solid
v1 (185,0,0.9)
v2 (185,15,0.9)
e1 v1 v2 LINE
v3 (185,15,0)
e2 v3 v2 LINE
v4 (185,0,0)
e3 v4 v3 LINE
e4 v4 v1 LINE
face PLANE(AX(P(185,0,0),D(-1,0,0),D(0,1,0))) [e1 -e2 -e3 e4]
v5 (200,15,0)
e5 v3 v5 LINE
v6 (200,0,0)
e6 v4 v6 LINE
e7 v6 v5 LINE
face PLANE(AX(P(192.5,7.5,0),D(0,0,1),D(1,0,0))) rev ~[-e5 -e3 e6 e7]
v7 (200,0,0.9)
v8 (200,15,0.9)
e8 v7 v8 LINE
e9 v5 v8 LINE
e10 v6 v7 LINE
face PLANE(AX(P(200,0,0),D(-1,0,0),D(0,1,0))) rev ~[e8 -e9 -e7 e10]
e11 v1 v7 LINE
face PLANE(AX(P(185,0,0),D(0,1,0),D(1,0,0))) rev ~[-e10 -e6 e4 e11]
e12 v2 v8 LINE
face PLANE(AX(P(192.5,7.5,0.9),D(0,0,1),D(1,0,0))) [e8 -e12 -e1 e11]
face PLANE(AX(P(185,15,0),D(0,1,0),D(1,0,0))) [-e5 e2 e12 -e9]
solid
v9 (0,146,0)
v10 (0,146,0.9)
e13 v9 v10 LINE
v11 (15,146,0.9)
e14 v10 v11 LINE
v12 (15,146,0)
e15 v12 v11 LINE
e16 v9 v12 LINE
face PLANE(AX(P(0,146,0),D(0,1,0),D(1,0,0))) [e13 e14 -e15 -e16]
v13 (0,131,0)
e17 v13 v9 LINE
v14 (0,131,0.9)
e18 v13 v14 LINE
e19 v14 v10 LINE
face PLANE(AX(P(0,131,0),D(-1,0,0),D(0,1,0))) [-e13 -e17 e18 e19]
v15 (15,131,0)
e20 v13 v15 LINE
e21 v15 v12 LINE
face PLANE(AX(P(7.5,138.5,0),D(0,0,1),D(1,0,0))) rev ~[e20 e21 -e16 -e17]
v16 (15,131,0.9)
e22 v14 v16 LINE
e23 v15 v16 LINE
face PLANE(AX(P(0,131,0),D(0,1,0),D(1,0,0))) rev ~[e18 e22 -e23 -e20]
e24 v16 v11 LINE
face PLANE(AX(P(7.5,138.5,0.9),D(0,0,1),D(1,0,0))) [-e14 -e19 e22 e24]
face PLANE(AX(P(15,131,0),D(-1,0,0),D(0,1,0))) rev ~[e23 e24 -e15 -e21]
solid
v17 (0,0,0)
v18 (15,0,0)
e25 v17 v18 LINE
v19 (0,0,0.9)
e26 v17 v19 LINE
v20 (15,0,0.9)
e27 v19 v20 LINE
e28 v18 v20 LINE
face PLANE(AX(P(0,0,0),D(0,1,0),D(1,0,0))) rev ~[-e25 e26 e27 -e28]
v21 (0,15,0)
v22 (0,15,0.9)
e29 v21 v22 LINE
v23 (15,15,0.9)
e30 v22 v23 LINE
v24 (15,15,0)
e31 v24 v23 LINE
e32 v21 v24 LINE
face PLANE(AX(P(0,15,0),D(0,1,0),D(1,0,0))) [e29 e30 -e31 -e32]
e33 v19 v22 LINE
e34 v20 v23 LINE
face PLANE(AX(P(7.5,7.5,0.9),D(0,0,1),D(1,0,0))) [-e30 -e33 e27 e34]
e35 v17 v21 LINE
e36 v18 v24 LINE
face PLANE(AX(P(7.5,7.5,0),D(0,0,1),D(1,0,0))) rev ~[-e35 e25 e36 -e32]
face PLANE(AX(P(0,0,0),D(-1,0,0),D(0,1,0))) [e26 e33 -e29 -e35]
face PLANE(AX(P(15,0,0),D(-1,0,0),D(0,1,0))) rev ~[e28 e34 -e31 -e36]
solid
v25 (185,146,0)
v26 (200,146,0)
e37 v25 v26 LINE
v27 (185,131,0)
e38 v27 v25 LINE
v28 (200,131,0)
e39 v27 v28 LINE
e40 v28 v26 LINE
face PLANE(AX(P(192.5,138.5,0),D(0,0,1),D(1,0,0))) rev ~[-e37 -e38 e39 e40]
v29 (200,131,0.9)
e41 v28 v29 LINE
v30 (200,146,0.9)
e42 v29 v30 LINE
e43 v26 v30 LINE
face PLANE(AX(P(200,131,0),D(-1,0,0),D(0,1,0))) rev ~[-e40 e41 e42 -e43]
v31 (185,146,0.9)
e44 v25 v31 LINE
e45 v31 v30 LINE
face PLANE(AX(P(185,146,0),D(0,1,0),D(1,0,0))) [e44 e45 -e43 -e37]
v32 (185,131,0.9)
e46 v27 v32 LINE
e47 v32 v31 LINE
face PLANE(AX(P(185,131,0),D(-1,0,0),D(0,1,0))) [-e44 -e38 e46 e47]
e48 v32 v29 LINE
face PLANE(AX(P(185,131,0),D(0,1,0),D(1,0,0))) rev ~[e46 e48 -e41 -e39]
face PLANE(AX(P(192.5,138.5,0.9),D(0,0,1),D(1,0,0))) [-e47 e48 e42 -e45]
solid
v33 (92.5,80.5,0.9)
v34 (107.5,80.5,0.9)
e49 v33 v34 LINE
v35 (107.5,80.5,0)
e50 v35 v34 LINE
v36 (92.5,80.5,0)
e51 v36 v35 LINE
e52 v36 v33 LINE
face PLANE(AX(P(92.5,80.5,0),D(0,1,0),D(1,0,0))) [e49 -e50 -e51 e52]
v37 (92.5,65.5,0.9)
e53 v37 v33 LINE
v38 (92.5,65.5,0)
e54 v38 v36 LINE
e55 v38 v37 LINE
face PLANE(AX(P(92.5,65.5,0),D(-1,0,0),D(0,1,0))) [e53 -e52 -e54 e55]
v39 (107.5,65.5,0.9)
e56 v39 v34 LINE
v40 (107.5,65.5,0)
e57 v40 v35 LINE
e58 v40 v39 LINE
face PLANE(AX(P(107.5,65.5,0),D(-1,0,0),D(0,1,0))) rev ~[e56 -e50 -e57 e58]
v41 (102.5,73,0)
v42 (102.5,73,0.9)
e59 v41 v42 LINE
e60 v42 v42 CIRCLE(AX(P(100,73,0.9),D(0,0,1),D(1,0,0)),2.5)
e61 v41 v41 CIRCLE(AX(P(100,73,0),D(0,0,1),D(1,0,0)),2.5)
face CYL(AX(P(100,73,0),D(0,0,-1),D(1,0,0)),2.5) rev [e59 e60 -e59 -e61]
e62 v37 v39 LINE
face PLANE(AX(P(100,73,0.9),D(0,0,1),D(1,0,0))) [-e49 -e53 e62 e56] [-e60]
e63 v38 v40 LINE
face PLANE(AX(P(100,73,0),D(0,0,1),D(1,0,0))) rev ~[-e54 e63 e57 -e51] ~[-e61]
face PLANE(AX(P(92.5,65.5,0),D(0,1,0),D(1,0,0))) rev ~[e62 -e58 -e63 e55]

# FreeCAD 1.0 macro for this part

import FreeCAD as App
import Part
import Sketcher
from FreeCAD import Vector

doc = App.newDocument("Part")
body = doc.addObject("PartDesign::Body", "Body")
body.AllowCompound = True

# Sketch on XY plane
sketch1 = body.newObject("Sketcher::SketchObject", "Sketch")
sketch1.AttachmentSupport = (doc.getObject("XY_Plane"), [""])
sketch1.MapMode = "FlatFace"
sketch1.addGeometry([
    Part.LineSegment(Vector(0, 15, 0), Vector(0, 0, 0)),  # 0
    Part.LineSegment(Vector(0, 0, 0), Vector(15, 0, 0)),  # 1
    Part.LineSegment(Vector(15, 0, 0), Vector(15, 15, 0)),  # 2
    Part.LineSegment(Vector(15, 15, 0), Vector(0, 15, 0)),  # 3
    Part.LineSegment(Vector(185, 15, 0), Vector(185, 0, 0)),  # 4
    Part.LineSegment(Vector(185, 0, 0), Vector(200, 0, 0)),  # 5
    Part.LineSegment(Vector(200, 0, 0), Vector(200, 15, 0)),  # 6
    Part.LineSegment(Vector(200, 15, 0), Vector(185, 15, 0)),  # 7
    Part.LineSegment(Vector(185, 146, 0), Vector(185, 131, 0)),  # 8
    Part.LineSegment(Vector(185, 131, 0), Vector(200, 131, 0)),  # 9
    Part.LineSegment(Vector(200, 131, 0), Vector(200, 146, 0)),  # 10
    Part.LineSegment(Vector(200, 146, 0), Vector(185, 146, 0)),  # 11
    Part.LineSegment(Vector(0, 146, 0), Vector(0, 131, 0)),  # 12
    Part.LineSegment(Vector(0, 131, 0), Vector(15, 131, 0)),  # 13
    Part.LineSegment(Vector(15, 131, 0), Vector(15, 146, 0)),  # 14
    Part.LineSegment(Vector(15, 146, 0), Vector(0, 146, 0)),  # 15
    Part.LineSegment(Vector(92.5, 80.5, 0), Vector(92.5, 65.5, 0)),  # 16
    Part.LineSegment(Vector(92.5, 65.5, 0), Vector(107.5, 65.5, 0)),  # 17
    Part.LineSegment(Vector(107.5, 65.5, 0), Vector(107.5, 80.5, 0)),  # 18
    Part.LineSegment(Vector(107.5, 80.5, 0), Vector(92.5, 80.5, 0)),  # 19
    Part.Circle(Vector(100, 73, 0), Vector(0, 0, 1), 2.5),  # 20
], False)
sketch1.addConstraint([
    Sketcher.Constraint("Coincident", 0, 2, 1, 1),
    Sketcher.Constraint("Coincident", 1, 2, 2, 1),
    Sketcher.Constraint("Coincident", 2, 2, 3, 1),
    Sketcher.Constraint("Coincident", 3, 2, 0, 1),
    Sketcher.Constraint("Coincident", 4, 2, 5, 1),
    Sketcher.Constraint("Coincident", 5, 2, 6, 1),
    Sketcher.Constraint("Coincident", 6, 2, 7, 1),
    Sketcher.Constraint("Coincident", 7, 2, 4, 1),
    Sketcher.Constraint("Coincident", 8, 2, 9, 1),
    Sketcher.Constraint("Coincident", 9, 2, 10, 1),
    Sketcher.Constraint("Coincident", 10, 2, 11, 1),
    Sketcher.Constraint("Coincident", 11, 2, 8, 1),
    Sketcher.Constraint("Coincident", 12, 2, 13, 1),
    Sketcher.Constraint("Coincident", 13, 2, 14, 1),
    Sketcher.Constraint("Coincident", 14, 2, 15, 1),
    Sketcher.Constraint("Coincident", 15, 2, 12, 1),
    Sketcher.Constraint("Coincident", 16, 2, 17, 1),
    Sketcher.Constraint("Coincident", 17, 2, 18, 1),
    Sketcher.Constraint("Coincident", 18, 2, 19, 1),
    Sketcher.Constraint("Coincident", 19, 2, 16, 1),
    Sketcher.Constraint("Vertical", 0),
    Sketcher.Constraint("Horizontal", 1),
    Sketcher.Constraint("Vertical", 2),
    Sketcher.Constraint("Horizontal", 3),
    Sketcher.Constraint("Vertical", 4),
    Sketcher.Constraint("Horizontal", 5),
    Sketcher.Constraint("Vertical", 6),
    Sketcher.Constraint("Horizontal", 7),
    Sketcher.Constraint("Vertical", 8),
    Sketcher.Constraint("Horizontal", 9),
    Sketcher.Constraint("Vertical", 10),
    Sketcher.Constraint("Horizontal", 11),
    Sketcher.Constraint("Vertical", 12),
    Sketcher.Constraint("Horizontal", 13),
    Sketcher.Constraint("Vertical", 14),
    Sketcher.Constraint("Horizontal", 15),
    Sketcher.Constraint("Vertical", 16),
    Sketcher.Constraint("Horizontal", 17),
    Sketcher.Constraint("Vertical", 18),
    Sketcher.Constraint("Horizontal", 19),
    Sketcher.Constraint("Coincident", 0, 2, -1, 1),
    Sketcher.Constraint("PointOnObject", 4, 2, -1),
    Sketcher.Constraint("PointOnObject", 12, 2, -2),
    Sketcher.Constraint("Horizontal", 3, 2, 6, 2),
    Sketcher.Constraint("Horizontal", 9, 2, 12, 2),
    Sketcher.Constraint("Horizontal", 11, 2, 14, 2),
    Sketcher.Constraint("Vertical", 7, 2, 8, 2),
    Sketcher.Constraint("Vertical", 6, 2, 9, 2),
    Sketcher.Constraint("Vertical", 2, 2, 13, 2),
    Sketcher.Constraint("Equal", 3, 5),
    Sketcher.Constraint("Equal", 15, 17),
    Sketcher.Constraint("Equal", 19, 0),
    Sketcher.Constraint("Equal", 6, 8),
    Sketcher.Constraint("Equal", 14, 16),
    Sketcher.Constraint("Diameter", 20, 5.0),
    Sketcher.Constraint("DistanceX", 1, 1, 1, 2, 15.0),
    Sketcher.Constraint("DistanceX", -1, 1, 20, 3, 100.0),
    Sketcher.Constraint("DistanceY", -1, 1, 20, 3, 73.0),
    Sketcher.Constraint("DistanceX", -1, 1, 4, 2, 185.0),
    Sketcher.Constraint("DistanceY", -1, 1, 8, 2, 131.0),
    Sketcher.Constraint("DistanceX", -1, 1, 16, 2, 92.5),
    Sketcher.Constraint("DistanceY", -1, 1, 16, 2, 65.5),
])
pad1 = body.newObject("PartDesign::Pad", "Pad")
pad1.Profile = sketch1
pad1.Length = 0.9

doc.recompute()
